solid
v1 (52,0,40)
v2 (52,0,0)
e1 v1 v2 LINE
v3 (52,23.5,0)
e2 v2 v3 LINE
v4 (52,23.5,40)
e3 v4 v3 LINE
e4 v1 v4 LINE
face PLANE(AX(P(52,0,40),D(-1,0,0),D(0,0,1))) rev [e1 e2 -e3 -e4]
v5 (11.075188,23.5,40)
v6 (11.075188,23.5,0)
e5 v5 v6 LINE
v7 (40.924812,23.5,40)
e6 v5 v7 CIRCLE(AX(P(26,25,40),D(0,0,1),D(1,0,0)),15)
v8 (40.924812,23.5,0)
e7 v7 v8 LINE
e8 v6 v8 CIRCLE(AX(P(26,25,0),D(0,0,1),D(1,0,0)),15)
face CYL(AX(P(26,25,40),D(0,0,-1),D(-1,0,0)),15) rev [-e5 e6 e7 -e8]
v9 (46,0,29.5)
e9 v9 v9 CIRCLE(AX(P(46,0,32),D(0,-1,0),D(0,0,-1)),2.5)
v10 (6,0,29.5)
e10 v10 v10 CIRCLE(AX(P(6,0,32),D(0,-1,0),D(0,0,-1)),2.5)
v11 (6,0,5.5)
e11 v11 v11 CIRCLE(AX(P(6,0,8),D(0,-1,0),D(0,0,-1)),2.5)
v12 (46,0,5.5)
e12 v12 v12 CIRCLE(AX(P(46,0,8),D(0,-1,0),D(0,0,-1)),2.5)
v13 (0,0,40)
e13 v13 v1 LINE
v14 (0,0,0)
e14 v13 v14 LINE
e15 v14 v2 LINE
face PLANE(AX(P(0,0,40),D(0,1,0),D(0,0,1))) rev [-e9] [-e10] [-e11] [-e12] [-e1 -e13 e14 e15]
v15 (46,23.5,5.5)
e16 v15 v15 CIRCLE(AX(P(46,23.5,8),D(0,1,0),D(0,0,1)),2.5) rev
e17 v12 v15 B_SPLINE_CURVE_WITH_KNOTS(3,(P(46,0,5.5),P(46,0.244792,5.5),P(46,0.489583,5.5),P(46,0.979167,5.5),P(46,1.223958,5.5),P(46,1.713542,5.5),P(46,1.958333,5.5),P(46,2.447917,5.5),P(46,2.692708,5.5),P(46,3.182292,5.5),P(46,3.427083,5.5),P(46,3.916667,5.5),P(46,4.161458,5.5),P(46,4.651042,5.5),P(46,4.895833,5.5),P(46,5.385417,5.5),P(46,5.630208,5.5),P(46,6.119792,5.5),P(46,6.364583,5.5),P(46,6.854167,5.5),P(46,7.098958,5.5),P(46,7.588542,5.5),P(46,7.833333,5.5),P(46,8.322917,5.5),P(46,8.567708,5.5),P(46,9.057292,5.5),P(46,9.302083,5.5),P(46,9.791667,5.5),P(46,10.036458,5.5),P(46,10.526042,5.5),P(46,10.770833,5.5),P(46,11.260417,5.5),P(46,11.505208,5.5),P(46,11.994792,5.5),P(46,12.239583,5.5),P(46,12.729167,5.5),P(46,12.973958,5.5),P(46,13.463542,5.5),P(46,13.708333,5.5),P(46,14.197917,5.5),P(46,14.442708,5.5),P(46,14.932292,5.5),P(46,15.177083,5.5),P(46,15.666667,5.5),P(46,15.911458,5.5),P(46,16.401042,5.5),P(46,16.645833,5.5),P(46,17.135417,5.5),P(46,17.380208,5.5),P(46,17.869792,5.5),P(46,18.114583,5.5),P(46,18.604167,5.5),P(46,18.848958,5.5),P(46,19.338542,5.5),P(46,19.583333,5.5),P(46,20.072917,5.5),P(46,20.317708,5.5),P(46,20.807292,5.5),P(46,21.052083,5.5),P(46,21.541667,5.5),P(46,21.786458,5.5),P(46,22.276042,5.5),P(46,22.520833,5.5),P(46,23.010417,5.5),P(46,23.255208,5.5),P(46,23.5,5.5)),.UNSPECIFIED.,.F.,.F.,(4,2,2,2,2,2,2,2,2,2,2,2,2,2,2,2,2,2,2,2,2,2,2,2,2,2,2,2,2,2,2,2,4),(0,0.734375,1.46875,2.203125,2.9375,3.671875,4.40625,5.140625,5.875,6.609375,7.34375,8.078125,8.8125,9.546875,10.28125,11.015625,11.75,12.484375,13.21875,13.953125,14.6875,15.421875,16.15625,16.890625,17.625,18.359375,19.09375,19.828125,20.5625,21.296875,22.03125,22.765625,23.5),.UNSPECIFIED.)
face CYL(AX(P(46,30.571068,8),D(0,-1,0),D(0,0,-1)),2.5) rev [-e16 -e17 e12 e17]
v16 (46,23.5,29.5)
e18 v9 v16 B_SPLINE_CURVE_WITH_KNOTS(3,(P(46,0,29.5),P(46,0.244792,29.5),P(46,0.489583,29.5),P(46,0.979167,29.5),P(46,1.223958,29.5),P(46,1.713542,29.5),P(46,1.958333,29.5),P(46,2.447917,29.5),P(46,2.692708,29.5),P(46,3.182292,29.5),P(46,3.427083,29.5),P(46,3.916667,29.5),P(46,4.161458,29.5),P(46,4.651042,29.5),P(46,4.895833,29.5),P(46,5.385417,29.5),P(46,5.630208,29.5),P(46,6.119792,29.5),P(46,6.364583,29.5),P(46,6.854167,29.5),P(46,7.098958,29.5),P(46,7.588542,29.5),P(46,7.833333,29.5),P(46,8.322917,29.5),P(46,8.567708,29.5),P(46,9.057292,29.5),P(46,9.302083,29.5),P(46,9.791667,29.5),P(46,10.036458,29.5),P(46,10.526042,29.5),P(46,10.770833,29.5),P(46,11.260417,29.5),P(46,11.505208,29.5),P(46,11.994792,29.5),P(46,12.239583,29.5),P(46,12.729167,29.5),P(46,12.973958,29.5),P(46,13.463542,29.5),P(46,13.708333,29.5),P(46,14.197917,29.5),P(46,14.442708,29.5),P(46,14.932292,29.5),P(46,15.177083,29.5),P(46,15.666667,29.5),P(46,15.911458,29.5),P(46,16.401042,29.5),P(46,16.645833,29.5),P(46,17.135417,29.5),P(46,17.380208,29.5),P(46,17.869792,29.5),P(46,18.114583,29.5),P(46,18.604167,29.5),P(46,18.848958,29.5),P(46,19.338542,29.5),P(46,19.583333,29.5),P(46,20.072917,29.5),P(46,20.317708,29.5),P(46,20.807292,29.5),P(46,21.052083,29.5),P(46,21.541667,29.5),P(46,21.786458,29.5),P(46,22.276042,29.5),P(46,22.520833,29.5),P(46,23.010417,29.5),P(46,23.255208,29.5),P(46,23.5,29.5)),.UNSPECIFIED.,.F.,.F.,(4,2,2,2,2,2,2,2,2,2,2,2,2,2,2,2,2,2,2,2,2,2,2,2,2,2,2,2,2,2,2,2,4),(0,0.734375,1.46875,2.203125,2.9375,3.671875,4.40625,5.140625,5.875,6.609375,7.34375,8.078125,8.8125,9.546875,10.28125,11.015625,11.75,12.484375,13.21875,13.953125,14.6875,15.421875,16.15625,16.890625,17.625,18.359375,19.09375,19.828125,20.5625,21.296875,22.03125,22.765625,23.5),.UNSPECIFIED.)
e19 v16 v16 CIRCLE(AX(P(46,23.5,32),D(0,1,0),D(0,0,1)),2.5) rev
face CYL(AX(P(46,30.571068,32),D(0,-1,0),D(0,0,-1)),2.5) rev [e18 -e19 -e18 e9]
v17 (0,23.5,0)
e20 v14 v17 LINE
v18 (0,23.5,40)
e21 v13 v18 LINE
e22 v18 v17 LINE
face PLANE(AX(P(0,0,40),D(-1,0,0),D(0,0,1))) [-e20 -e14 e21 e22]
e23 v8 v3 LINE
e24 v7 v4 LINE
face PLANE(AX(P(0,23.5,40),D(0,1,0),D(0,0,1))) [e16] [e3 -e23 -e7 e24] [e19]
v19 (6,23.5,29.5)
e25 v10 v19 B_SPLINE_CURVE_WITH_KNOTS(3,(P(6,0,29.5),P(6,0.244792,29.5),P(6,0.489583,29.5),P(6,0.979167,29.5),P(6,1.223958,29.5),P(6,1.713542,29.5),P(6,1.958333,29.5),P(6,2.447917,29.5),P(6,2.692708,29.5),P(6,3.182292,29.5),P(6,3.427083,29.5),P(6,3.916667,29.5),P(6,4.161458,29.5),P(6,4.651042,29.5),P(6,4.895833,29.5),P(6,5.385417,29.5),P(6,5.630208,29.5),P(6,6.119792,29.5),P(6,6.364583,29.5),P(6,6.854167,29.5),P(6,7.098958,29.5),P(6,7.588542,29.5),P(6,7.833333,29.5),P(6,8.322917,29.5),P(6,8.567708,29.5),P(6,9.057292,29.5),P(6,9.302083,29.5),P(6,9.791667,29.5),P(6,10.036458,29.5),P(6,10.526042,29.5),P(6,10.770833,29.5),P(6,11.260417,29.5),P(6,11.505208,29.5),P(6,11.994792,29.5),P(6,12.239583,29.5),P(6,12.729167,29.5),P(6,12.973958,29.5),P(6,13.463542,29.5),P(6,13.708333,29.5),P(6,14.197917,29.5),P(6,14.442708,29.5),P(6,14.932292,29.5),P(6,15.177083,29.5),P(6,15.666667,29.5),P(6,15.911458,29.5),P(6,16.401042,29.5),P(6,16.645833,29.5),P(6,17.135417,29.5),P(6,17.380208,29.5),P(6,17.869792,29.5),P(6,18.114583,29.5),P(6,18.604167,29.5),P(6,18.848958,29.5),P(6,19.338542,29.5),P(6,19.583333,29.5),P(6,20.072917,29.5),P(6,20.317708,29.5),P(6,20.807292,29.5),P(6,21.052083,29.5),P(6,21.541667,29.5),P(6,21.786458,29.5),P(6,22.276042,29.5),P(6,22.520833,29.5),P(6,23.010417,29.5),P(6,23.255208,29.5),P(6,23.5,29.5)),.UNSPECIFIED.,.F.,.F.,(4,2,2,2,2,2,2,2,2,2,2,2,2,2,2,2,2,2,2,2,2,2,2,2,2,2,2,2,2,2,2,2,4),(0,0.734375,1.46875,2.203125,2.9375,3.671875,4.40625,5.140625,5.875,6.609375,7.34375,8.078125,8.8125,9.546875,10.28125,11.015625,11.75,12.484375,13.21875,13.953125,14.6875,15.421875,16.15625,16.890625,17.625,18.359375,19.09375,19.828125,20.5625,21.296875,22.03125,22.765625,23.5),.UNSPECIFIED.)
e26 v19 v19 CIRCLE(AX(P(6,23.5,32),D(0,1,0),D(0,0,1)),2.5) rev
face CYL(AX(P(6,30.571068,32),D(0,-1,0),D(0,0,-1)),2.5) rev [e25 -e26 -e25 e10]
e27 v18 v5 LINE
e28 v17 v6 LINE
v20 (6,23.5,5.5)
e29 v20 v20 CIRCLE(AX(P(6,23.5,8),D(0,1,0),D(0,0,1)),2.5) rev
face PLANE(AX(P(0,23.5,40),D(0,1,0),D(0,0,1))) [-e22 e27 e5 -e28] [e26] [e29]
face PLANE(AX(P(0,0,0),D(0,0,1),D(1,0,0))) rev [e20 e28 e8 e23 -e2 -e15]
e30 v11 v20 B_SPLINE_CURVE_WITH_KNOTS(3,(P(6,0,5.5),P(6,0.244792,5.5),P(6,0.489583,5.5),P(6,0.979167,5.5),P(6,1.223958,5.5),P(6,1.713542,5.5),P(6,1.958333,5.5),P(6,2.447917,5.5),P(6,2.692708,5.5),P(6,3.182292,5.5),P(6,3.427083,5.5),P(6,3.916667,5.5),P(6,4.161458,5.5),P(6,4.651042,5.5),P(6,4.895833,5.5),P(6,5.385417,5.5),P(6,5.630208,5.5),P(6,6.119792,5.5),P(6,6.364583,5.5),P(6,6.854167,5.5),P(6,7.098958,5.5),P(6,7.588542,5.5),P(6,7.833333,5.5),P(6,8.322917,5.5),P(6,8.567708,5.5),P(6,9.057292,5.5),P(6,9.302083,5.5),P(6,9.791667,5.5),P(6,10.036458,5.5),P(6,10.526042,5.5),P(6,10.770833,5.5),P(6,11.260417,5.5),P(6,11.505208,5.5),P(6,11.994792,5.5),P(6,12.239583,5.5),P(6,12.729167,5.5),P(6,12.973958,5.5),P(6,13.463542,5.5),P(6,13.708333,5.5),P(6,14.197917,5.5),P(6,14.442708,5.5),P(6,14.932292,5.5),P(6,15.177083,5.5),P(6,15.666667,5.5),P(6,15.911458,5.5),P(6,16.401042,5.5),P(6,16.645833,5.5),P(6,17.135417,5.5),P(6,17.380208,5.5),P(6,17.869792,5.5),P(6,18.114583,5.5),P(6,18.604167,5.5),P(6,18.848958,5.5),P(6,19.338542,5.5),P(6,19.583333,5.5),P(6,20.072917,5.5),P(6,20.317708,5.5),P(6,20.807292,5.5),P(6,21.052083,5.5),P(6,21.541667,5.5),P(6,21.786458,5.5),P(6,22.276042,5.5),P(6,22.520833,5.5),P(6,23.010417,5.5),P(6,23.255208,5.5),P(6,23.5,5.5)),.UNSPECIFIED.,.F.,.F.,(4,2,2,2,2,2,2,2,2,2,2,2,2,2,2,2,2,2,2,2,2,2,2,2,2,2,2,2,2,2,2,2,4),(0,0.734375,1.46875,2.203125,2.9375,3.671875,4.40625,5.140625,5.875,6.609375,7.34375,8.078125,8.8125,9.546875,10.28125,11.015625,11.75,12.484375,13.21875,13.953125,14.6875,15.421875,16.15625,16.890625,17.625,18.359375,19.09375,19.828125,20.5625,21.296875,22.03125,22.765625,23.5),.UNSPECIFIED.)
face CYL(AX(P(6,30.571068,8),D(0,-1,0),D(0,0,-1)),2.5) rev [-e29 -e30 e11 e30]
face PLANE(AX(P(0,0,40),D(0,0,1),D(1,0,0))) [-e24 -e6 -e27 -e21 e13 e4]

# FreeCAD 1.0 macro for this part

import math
import FreeCAD as App
import Part
import Sketcher
Q = App.Units.Quantity

doc = App.newDocument("Part")
body = doc.addObject("PartDesign::Body", "Body")

# Sketch on XY plane
sketch1 = doc.addObject("Sketcher::SketchObject", "Sketch")
body.addObject(sketch1)
sketch1.AttachmentSupport = (doc.XY_Plane, [""])
sketch1.MapMode = "FlatFace"
sketch1.addGeometry([
    Part.LineSegment(App.Vector(0, 24, 0), App.Vector(0, 0, 0)),  # 0
    Part.LineSegment(App.Vector(0, 0, 0), App.Vector(52, 0, 0)),  # 1
    Part.LineSegment(App.Vector(52, 0, 0), App.Vector(52, 24, 0)),  # 2
    Part.LineSegment(App.Vector(52, 24, 0), App.Vector(41, 24, 0)),  # 3
    Part.ArcOfCircle(Part.Circle(App.Vector(26, 25, 0), App.Vector(0, 0, 1), 15), math.radians(-174), math.radians(-6)),  # 4
    Part.LineSegment(App.Vector(11, 24, 0), App.Vector(0, 24, 0)),  # 5
], False)
sketch1.addConstraint([
    Sketcher.Constraint("Coincident", 0, 2, 1, 1),
    Sketcher.Constraint("Coincident", 1, 2, 2, 1),
    Sketcher.Constraint("Coincident", 2, 2, 3, 1),
    Sketcher.Constraint("Coincident", 3, 2, 4, 2),
    Sketcher.Constraint("Coincident", 4, 1, 5, 1),
    Sketcher.Constraint("Coincident", 5, 2, 0, 1),
    Sketcher.Constraint("Vertical", 0),
    Sketcher.Constraint("Horizontal", 1),
    Sketcher.Constraint("Vertical", 2),
    Sketcher.Constraint("Horizontal", 3),
    Sketcher.Constraint("Horizontal", 5),
    Sketcher.Constraint("Coincident", 0, 2, -1, 1),
    Sketcher.Constraint("Horizontal", 3, 2, 4, 1),
    Sketcher.Constraint("Equal", 3, 5),
    Sketcher.Constraint("Radius", 4, Q("15 mm")),
    Sketcher.Constraint("DistanceX", 1, 1, 1, 2, Q("52 mm")),
    Sketcher.Constraint("DistanceY", 0, 2, 0, 1, Q("23.5 mm")),
    Sketcher.Constraint("DistanceY", -1, 1, 4, 3, Q("25 mm")),
])
pad1 = doc.addObject("PartDesign::Pad", "Pad")
body.addObject(pad1)
pad1.Profile = sketch1
pad1.Length = 40

# Sketch on XZ plane
sketch2 = doc.addObject("Sketcher::SketchObject", "Sketch001")
body.addObject(sketch2)
sketch2.AttachmentSupport = (doc.XZ_Plane, [""])
sketch2.MapMode = "FlatFace"
sketch2.addGeometry([
    Part.Circle(App.Vector(6, 8, 0), App.Vector(0, 0, 1), 2.5),
    Part.Circle(App.Vector(6, 32, 0), App.Vector(0, 0, 1), 2.5),
    Part.Circle(App.Vector(46, 32, 0), App.Vector(0, 0, 1), 2.5),
    Part.Circle(App.Vector(46, 8, 0), App.Vector(0, 0, 1), 2.5),
], False)
sketch2.addConstraint([
    Sketcher.Constraint("Equal", 0, 1),
    Sketcher.Constraint("Equal", 1, 2),
    Sketcher.Constraint("Equal", 2, 3),
    Sketcher.Constraint("Horizontal", 1, 3, 2, 3),
    Sketcher.Constraint("Horizontal", 0, 3, 3, 3),
    Sketcher.Constraint("Vertical", 0, 3, 1, 3),
    Sketcher.Constraint("Vertical", 2, 3, 3, 3),
    Sketcher.Constraint("Diameter", 0, Q("5 mm")),
    Sketcher.Constraint("DistanceX", -1, 1, 0, 3, Q("6 mm")),
    Sketcher.Constraint("DistanceY", -1, 1, 0, 3, Q("8 mm")),
    Sketcher.Constraint("DistanceY", -1, 1, 1, 3, Q("32 mm")),
    Sketcher.Constraint("DistanceX", -1, 1, 2, 3, Q("46 mm")),
])
pocket1 = doc.addObject("PartDesign::Pocket", "Pocket")
body.addObject(pocket1)
pocket1.Profile = sketch2
pocket1.Length = 23.5

doc.recompute()
